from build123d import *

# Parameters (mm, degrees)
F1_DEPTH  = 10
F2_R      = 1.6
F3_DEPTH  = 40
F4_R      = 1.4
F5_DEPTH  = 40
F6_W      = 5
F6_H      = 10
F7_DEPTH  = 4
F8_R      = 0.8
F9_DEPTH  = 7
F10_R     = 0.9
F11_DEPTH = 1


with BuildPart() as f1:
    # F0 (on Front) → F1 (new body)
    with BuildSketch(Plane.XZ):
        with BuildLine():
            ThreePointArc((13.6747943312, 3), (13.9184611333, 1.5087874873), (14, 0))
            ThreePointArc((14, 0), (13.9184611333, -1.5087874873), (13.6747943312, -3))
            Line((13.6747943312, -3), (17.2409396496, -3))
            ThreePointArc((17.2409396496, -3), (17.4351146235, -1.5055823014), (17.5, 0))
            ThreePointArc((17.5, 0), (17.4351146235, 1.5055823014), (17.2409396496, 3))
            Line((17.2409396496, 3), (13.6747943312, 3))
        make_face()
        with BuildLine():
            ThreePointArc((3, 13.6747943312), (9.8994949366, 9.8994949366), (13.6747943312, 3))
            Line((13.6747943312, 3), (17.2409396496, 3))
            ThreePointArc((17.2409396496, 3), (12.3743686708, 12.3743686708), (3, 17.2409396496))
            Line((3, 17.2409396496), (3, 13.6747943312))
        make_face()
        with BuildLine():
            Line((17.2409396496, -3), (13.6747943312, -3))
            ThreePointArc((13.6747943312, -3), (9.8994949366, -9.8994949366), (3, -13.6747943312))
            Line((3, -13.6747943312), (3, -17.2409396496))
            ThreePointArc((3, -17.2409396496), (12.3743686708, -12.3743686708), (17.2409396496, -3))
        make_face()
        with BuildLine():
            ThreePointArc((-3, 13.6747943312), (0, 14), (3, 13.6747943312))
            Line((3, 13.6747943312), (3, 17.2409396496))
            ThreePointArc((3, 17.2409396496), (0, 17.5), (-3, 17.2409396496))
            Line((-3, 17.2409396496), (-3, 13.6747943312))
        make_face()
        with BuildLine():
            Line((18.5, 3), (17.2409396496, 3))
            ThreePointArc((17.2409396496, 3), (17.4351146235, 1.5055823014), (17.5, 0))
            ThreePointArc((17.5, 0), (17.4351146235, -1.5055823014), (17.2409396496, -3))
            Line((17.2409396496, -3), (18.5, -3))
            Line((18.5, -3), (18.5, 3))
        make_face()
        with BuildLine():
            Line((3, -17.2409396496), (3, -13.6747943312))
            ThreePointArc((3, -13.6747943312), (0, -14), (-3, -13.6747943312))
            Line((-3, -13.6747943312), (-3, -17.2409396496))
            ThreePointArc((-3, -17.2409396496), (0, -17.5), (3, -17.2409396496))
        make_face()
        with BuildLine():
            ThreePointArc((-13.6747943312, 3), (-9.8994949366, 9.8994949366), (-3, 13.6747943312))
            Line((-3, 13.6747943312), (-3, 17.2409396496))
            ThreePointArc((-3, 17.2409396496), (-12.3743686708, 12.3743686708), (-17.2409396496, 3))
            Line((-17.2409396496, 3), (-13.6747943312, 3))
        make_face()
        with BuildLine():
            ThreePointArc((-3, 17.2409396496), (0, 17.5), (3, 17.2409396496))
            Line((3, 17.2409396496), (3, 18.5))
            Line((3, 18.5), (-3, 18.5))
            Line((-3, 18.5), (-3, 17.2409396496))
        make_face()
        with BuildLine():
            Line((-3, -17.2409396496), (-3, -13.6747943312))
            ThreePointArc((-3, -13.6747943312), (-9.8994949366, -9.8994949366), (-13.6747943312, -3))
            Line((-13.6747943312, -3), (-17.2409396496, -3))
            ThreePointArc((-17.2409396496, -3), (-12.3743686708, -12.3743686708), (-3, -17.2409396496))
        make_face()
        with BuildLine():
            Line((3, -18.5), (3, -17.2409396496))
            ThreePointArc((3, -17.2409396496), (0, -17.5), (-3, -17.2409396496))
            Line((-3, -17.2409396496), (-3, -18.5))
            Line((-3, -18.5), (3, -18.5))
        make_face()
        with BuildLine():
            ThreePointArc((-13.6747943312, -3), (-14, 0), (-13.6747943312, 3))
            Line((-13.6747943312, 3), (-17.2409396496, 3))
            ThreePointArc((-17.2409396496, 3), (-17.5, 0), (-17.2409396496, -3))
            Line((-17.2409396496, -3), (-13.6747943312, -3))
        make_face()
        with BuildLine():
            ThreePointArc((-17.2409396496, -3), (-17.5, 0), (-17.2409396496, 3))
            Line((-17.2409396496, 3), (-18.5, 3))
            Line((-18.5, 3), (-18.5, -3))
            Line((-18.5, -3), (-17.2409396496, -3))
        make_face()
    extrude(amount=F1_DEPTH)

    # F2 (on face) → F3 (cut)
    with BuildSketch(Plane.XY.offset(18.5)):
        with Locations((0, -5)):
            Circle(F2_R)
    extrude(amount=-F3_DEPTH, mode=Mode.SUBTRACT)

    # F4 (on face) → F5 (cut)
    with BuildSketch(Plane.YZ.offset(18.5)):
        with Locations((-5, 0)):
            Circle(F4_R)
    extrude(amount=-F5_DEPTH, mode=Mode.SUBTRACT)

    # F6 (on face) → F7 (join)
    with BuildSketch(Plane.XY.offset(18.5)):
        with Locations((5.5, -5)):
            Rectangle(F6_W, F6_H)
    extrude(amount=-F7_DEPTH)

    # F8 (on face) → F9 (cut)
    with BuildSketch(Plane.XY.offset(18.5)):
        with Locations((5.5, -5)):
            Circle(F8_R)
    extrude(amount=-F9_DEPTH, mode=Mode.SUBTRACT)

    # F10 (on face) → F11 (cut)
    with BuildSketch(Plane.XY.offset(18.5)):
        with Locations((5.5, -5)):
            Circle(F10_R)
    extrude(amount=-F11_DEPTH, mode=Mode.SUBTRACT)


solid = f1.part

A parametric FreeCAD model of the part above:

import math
import FreeCAD as App
import Part
import Sketcher
Q = App.Units.Quantity

doc = App.newDocument("Part")
body = doc.addObject("PartDesign::Body", "Body")

# Sketch on XZ plane
sketch1 = body.newObject("Sketcher::SketchObject", "Sketch")
sketch1.AttachmentSupport = (doc.getObject("XZ_Plane"), [""])
sketch1.MapMode = "FlatFace"
sketch1.addGeometry(Part.ArcOfCircle(Part.Circle(App.Vector(0, 0, 0), App.Vector(0, 0, 1), 17.5), math.radians(-170), math.radians(-100)), False)
sketch1.addGeometry(Part.LineSegment(App.Vector(-3, -17.2, 0), App.Vector(-3, -18.5, 0)), False)
sketch1.addGeometry(Part.LineSegment(App.Vector(-3, -18.5, 0), App.Vector(3, -18.5, 0)), False)
sketch1.addGeometry(Part.LineSegment(App.Vector(3, -18.5, 0), App.Vector(3, -17.2, 0)), False)
sketch1.addGeometry(Part.ArcOfCircle(Part.Circle(App.Vector(0, 0, 0), App.Vector(0, 0, 1), 17.5), math.radians(-80), math.radians(-10)), False)
sketch1.addGeometry(Part.LineSegment(App.Vector(17.2, -3, 0), App.Vector(18.5, -3, 0)), False)
sketch1.addGeometry(Part.LineSegment(App.Vector(18.5, -3, 0), App.Vector(18.5, 3, 0)), False)
sketch1.addGeometry(Part.LineSegment(App.Vector(18.5, 3, 0), App.Vector(17.2, 3, 0)), False)
sketch1.addGeometry(Part.ArcOfCircle(Part.Circle(App.Vector(0, 0, 0), App.Vector(0, 0, 1), 17.5), math.radians(10), math.radians(80)), False)
sketch1.addGeometry(Part.LineSegment(App.Vector(3, 17.2, 0), App.Vector(3, 18.5, 0)), False)
sketch1.addGeometry(Part.LineSegment(App.Vector(3, 18.5, 0), App.Vector(-3, 18.5, 0)), False)
sketch1.addGeometry(Part.LineSegment(App.Vector(-3, 18.5, 0), App.Vector(-3, 17.2, 0)), False)
sketch1.addGeometry(Part.ArcOfCircle(Part.Circle(App.Vector(0, 0, 0), App.Vector(0, 0, 1), 17.5), math.radians(100), math.radians(170)), False)
sketch1.addGeometry(Part.LineSegment(App.Vector(-17.2, 3, 0), App.Vector(-18.5, 3, 0)), False)
sketch1.addGeometry(Part.LineSegment(App.Vector(-18.5, 3, 0), App.Vector(-18.5, -3, 0)), False)
sketch1.addGeometry(Part.LineSegment(App.Vector(-18.5, -3, 0), App.Vector(-17.2, -3, 0)), False)
sketch1.addGeometry(Part.ArcOfCircle(Part.Circle(App.Vector(0, 0, 0), App.Vector(0, 0, 1), 14), math.radians(0), math.radians(12.37)), False)
sketch1.addGeometry(Part.ArcOfCircle(Part.Circle(App.Vector(0, 0, 0), App.Vector(0, 0, 1), 14), math.radians(-12.37), math.radians(0)), False)
sketch1.addGeometry(Part.ArcOfCircle(Part.Circle(App.Vector(0, 0, 0), App.Vector(0, 0, 1), 14), math.radians(-78), math.radians(-12)), False)
sketch1.addGeometry(Part.ArcOfCircle(Part.Circle(App.Vector(0, 0, 0), App.Vector(0, 0, 1), 14), math.radians(-102), math.radians(-78)), False)
sketch1.addGeometry(Part.ArcOfCircle(Part.Circle(App.Vector(0, 0, 0), App.Vector(0, 0, 1), 14), math.radians(-168), math.radians(-102)), False)
sketch1.addGeometry(Part.ArcOfCircle(Part.Circle(App.Vector(0, 0, 0), App.Vector(0, 0, 1), 14), math.radians(168), math.radians(192)), False)
sketch1.addGeometry(Part.ArcOfCircle(Part.Circle(App.Vector(0, 0, 0), App.Vector(0, 0, 1), 14), math.radians(102), math.radians(168)), False)
sketch1.addGeometry(Part.ArcOfCircle(Part.Circle(App.Vector(0, 0, 0), App.Vector(0, 0, 1), 14), math.radians(78), math.radians(102)), False)
sketch1.addGeometry(Part.ArcOfCircle(Part.Circle(App.Vector(0, 0, 0), App.Vector(0, 0, 1), 14), math.radians(12), math.radians(78)), False)
sketch1.addConstraint(Sketcher.Constraint("Coincident", 0, 2, 1, 1))
sketch1.addConstraint(Sketcher.Constraint("Coincident", 1, 2, 2, 1))
sketch1.addConstraint(Sketcher.Constraint("Coincident", 2, 2, 3, 1))
sketch1.addConstraint(Sketcher.Constraint("Coincident", 3, 2, 4, 1))
sketch1.addConstraint(Sketcher.Constraint("Coincident", 4, 2, 5, 1))
sketch1.addConstraint(Sketcher.Constraint("Coincident", 5, 2, 6, 1))
sketch1.addConstraint(Sketcher.Constraint("Coincident", 6, 2, 7, 1))
sketch1.addConstraint(Sketcher.Constraint("Coincident", 7, 2, 8, 1))
sketch1.addConstraint(Sketcher.Constraint("Coincident", 8, 2, 9, 1))
sketch1.addConstraint(Sketcher.Constraint("Coincident", 9, 2, 10, 1))
sketch1.addConstraint(Sketcher.Constraint("Coincident", 10, 2, 11, 1))
sketch1.addConstraint(Sketcher.Constraint("Coincident", 11, 2, 12, 1))
sketch1.addConstraint(Sketcher.Constraint("Coincident", 12, 2, 13, 1))
sketch1.addConstraint(Sketcher.Constraint("Coincident", 13, 2, 14, 1))
sketch1.addConstraint(Sketcher.Constraint("Coincident", 14, 2, 15, 1))
sketch1.addConstraint(Sketcher.Constraint("Coincident", 15, 2, 0, 1))
sketch1.addConstraint(Sketcher.Constraint("Tangent", 16, 1, 17, 2))
sketch1.addConstraint(Sketcher.Constraint("Tangent", 17, 1, 18, 2))
sketch1.addConstraint(Sketcher.Constraint("Tangent", 18, 1, 19, 2))
sketch1.addConstraint(Sketcher.Constraint("Tangent", 19, 1, 20, 2))
sketch1.addConstraint(Sketcher.Constraint("Tangent", 20, 1, 21, 2))
sketch1.addConstraint(Sketcher.Constraint("Tangent", 21, 1, 22, 2))
sketch1.addConstraint(Sketcher.Constraint("Tangent", 22, 1, 23, 2))
sketch1.addConstraint(Sketcher.Constraint("Tangent", 23, 1, 24, 2))
sketch1.addConstraint(Sketcher.Constraint("Tangent", 24, 1, 16, 2))
sketch1.addConstraint(Sketcher.Constraint("Vertical", 1))
sketch1.addConstraint(Sketcher.Constraint("Horizontal", 2))
sketch1.addConstraint(Sketcher.Constraint("Vertical", 3))
sketch1.addConstraint(Sketcher.Constraint("Horizontal", 5))
sketch1.addConstraint(Sketcher.Constraint("Vertical", 6))
sketch1.addConstraint(Sketcher.Constraint("Horizontal", 7))
sketch1.addConstraint(Sketcher.Constraint("Vertical", 9))
sketch1.addConstraint(Sketcher.Constraint("Horizontal", 10))
sketch1.addConstraint(Sketcher.Constraint("Vertical", 11))
sketch1.addConstraint(Sketcher.Constraint("Horizontal", 13))
sketch1.addConstraint(Sketcher.Constraint("Vertical", 14))
sketch1.addConstraint(Sketcher.Constraint("Horizontal", 15))
sketch1.addConstraint(Sketcher.Constraint("Coincident", 0, 3, -1, 1))
sketch1.addConstraint(Sketcher.Constraint("Coincident", 4, 3, -1, 1))
sketch1.addConstraint(Sketcher.Constraint("Coincident", 8, 3, -1, 1))
sketch1.addConstraint(Sketcher.Constraint("Coincident", 12, 3, -1, 1))
sketch1.addConstraint(Sketcher.Constraint("Coincident", 16, 3, -1, 1))
sketch1.addConstraint(Sketcher.Constraint("Coincident", 18, 3, -1, 1))
sketch1.addConstraint(Sketcher.Constraint("Coincident", 20, 3, -1, 1))
sketch1.addConstraint(Sketcher.Constraint("Coincident", 22, 3, -1, 1))
sketch1.addConstraint(Sketcher.Constraint("Equal", 0, 4))
sketch1.addConstraint(Sketcher.Constraint("Equal", 4, 8))
sketch1.addConstraint(Sketcher.Constraint("Equal", 8, 12))
sketch1.addConstraint(Sketcher.Constraint("Symmetric", 1, 2, 9, 2, -1, 1))
sketch1.addConstraint(Sketcher.Constraint("Symmetric", 5, 2, 13, 2, -1, 1))
sketch1.addConstraint(Sketcher.Constraint("PointOnObject", 16, 1, -1))
sketch1.addConstraint(Sketcher.Constraint("Horizontal", 0, 2, 3, 2))
sketch1.addConstraint(Sketcher.Constraint("Horizontal", 8, 2, 11, 2))
sketch1.addConstraint(Sketcher.Constraint("Horizontal", 7, 2, 12, 2))
sketch1.addConstraint(Sketcher.Constraint("Horizontal", 5, 2, 14, 2))
sketch1.addConstraint(Sketcher.Constraint("Horizontal", 15, 2, 17, 1))
sketch1.addConstraint(Sketcher.Constraint("Horizontal", 18, 1, 19, 1))
sketch1.addConstraint(Sketcher.Constraint("Horizontal", 17, 1, 20, 1))
sketch1.addConstraint(Sketcher.Constraint("Horizontal", 13, 2, 21, 1))
sketch1.addConstraint(Sketcher.Constraint("Horizontal", 22, 1, 23, 1))
sketch1.addConstraint(Sketcher.Constraint("Horizontal", 21, 1, 24, 1))
sketch1.addConstraint(Sketcher.Constraint("Vertical", 9, 2, 18, 1))
sketch1.addConstraint(Sketcher.Constraint("Vertical", 19, 1, 22, 1))
sketch1.addConstraint(Sketcher.Constraint("Equal", 15, 1))
sketch1.addConstraint(Sketcher.Constraint("Equal", 10, 6))
sketch1.addConstraint(Sketcher.Constraint("Radius", 16, Q("14 mm")))
sketch1.addConstraint(Sketcher.Constraint("Radius", 0, Q("17.5 mm")))
sketch1.addConstraint(Sketcher.Constraint("DistanceX", 2, 1, 2, 2, Q("6 mm")))
sketch1.addConstraint(Sketcher.Constraint("DistanceY", 1, 2, -1, 1, Q("18.5 mm")))
pad1 = body.newObject("PartDesign::Pad", "Pad")
pad1.Profile = sketch1
pad1.Length = 10

# Sketch on XY plane
sketch2 = body.newObject("Sketcher::SketchObject", "Sketch001")
sketch2.AttachmentSupport = (doc.getObject("XY_Plane"), [""])
sketch2.MapMode = "FlatFace"
sketch2.AttachmentOffset = App.Placement(App.Vector(0, 0, 18.5), App.Rotation())
sketch2.addGeometry(Part.Circle(App.Vector(0, -5, 0), App.Vector(0, 0, 1), 1.6), False)
sketch2.addConstraint(Sketcher.Constraint("PointOnObject", 0, 3, -2))
sketch2.addConstraint(Sketcher.Constraint("Diameter", 0, Q("3.2 mm")))
sketch2.addConstraint(Sketcher.Constraint("DistanceY", 0, 3, -1, 1, Q("5 mm")))
pocket1 = body.newObject("PartDesign::Pocket", "Pocket")
pocket1.Profile = sketch2
pocket1.Length = 40

# Sketch on YZ plane
sketch3 = body.newObject("Sketcher::SketchObject", "Sketch002")
sketch3.AttachmentSupport = (doc.getObject("YZ_Plane"), [""])
sketch3.MapMode = "FlatFace"
sketch3.AttachmentOffset = App.Placement(App.Vector(0, 0, 18.5), App.Rotation())
sketch3.addGeometry(Part.Circle(App.Vector(-5, 0, 0), App.Vector(0, 0, 1), 1.4), False)
sketch3.addConstraint(Sketcher.Constraint("PointOnObject", 0, 3, -1))
sketch3.addConstraint(Sketcher.Constraint("Diameter", 0, Q("2.8 mm")))
sketch3.addConstraint(Sketcher.Constraint("DistanceX", 0, 3, -1, 1, Q("5 mm")))
pocket2 = body.newObject("PartDesign::Pocket", "Pocket001")
pocket2.Profile = sketch3
pocket2.Length = 40

# Sketch on XY plane
sketch4 = body.newObject("Sketcher::SketchObject", "Sketch003")
sketch4.AttachmentSupport = (doc.getObject("XY_Plane"), [""])
sketch4.MapMode = "FlatFace"
sketch4.AttachmentOffset = App.Placement(App.Vector(0, 0, 18.5), App.Rotation())
sketch4.addGeometry(Part.LineSegment(App.Vector(3, 0, 0), App.Vector(3, -10, 0)), False)
sketch4.addGeometry(Part.LineSegment(App.Vector(3, -10, 0), App.Vector(8, -10, 0)), False)
sketch4.addGeometry(Part.LineSegment(App.Vector(8, -10, 0), App.Vector(8, 0, 0)), False)
sketch4.addGeometry(Part.LineSegment(App.Vector(8, 0, 0), App.Vector(3, 0, 0)), False)
sketch4.addConstraint(Sketcher.Constraint("Coincident", 0, 2, 1, 1))
sketch4.addConstraint(Sketcher.Constraint("Coincident", 1, 2, 2, 1))
sketch4.addConstraint(Sketcher.Constraint("Coincident", 2, 2, 3, 1))
sketch4.addConstraint(Sketcher.Constraint("Coincident", 3, 2, 0, 1))
sketch4.addConstraint(Sketcher.Constraint("Vertical", 0))
sketch4.addConstraint(Sketcher.Constraint("Horizontal", 1))
sketch4.addConstraint(Sketcher.Constraint("Vertical", 2))
sketch4.addConstraint(Sketcher.Constraint("Horizontal", 3))
sketch4.addConstraint(Sketcher.Constraint("PointOnObject", 2, 2, -1))
sketch4.addConstraint(Sketcher.Constraint("DistanceX", 1, 1, 1, 2, Q("5 mm")))
sketch4.addConstraint(Sketcher.Constraint("DistanceY", 0, 2, 0, 1, Q("10 mm")))
sketch4.addConstraint(Sketcher.Constraint("DistanceX", -1, 1, 0, 2, Q("3 mm")))
pad2 = body.newObject("PartDesign::Pad", "Pad001")
pad2.Profile = sketch4
pad2.Length = 4
pad2.Reversed = True

# Sketch on XY plane
sketch5 = body.newObject("Sketcher::SketchObject", "Sketch004")
sketch5.AttachmentSupport = (doc.getObject("XY_Plane"), [""])
sketch5.MapMode = "FlatFace"
sketch5.AttachmentOffset = App.Placement(App.Vector(0, 0, 18.5), App.Rotation())
sketch5.addGeometry(Part.Circle(App.Vector(5.5, -5, 0), App.Vector(0, 0, 1), 0.8), False)
sketch5.addConstraint(Sketcher.Constraint("Diameter", 0, Q("1.6 mm")))
sketch5.addConstraint(Sketcher.Constraint("DistanceY", 0, 3, -1, 1, Q("5 mm")))
sketch5.addConstraint(Sketcher.Constraint("DistanceX", -1, 1, 0, 3, Q("5.5 mm")))
pocket3 = body.newObject("PartDesign::Pocket", "Pocket002")
pocket3.Profile = sketch5
pocket3.Length = 7

# Sketch on XY plane
sketch6 = body.newObject("Sketcher::SketchObject", "Sketch005")
sketch6.AttachmentSupport = (doc.getObject("XY_Plane"), [""])
sketch6.MapMode = "FlatFace"
sketch6.AttachmentOffset = App.Placement(App.Vector(0, 0, 18.5), App.Rotation())
sketch6.addGeometry(Part.Circle(App.Vector(5.5, -5, 0), App.Vector(0, 0, 1), 0.9), False)
sketch6.addConstraint(Sketcher.Constraint("Diameter", 0, Q("1.8 mm")))
sketch6.addConstraint(Sketcher.Constraint("DistanceY", 0, 3, -1, 1, Q("5 mm")))
sketch6.addConstraint(Sketcher.Constraint("DistanceX", -1, 1, 0, 3, Q("5.5 mm")))
pocket4 = body.newObject("PartDesign::Pocket", "Pocket003")
pocket4.Profile = sketch6
pocket4.Length = 1

doc.recompute()
